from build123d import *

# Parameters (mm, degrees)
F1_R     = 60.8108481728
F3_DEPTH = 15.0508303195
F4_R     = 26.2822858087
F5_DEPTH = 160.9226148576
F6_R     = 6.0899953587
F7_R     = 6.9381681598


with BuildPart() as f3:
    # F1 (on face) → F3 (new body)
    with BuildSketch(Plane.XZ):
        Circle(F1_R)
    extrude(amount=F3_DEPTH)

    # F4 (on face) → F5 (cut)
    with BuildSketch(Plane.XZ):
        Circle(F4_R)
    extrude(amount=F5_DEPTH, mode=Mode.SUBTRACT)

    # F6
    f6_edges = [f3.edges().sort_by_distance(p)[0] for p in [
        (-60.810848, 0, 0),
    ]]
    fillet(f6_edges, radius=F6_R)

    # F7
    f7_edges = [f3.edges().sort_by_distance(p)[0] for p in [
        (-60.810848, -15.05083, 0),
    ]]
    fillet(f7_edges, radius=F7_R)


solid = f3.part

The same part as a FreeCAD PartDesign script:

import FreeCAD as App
import Part
import Sketcher
Q = App.Units.Quantity


def edges_at(feature, points):
    """Names of the edges that pass closest to the given points."""
    edges = feature.Shape.Edges
    near = lambda p: min(range(len(edges)), key=lambda i: edges[i].distToShape(Part.Vertex(*p))[0])
    return sorted({f"Edge{near(p) + 1}" for p in points})

doc = App.newDocument("Part")
params = doc.addObject("Spreadsheet::Sheet", "Params")
for row, (alias, value) in enumerate([
    ("pad1_length", "15.05083 mm"),
    ("pocket1_length", "160.922615 mm"),
    ("fillet_radius", "6.089995 mm"),
    ("fillet2_radius", "6.938168 mm"),
], start=1):
    params.set(f"A{row}", alias)
    params.set(f"B{row}", "=" + value)
    params.setAlias(f"B{row}", alias)

body = doc.addObject("PartDesign::Body", "Body")

sketch1 = body.newObject("Sketcher::SketchObject", "Sketch")
sketch1.AttachmentSupport = (doc.getObject("XZ_Plane"), [""])
sketch1.MapMode = "FlatFace"
sketch1.addGeometry(Part.Circle(App.Vector(0, 0, 0), App.Vector(0, 0, 1), 61), False)
sketch1.addConstraint(Sketcher.Constraint("Coincident", 0, 3, -1, 1))
sketch1.addConstraint(Sketcher.Constraint("Diameter", 0, Q("121.621696 mm")))
pad1 = body.newObject("PartDesign::Pad", "Pad")
pad1.Profile = sketch1
pad1.setExpression("Length", "Params.pad1_length")

sketch2 = body.newObject("Sketcher::SketchObject", "Sketch001")
sketch2.AttachmentSupport = (doc.getObject("XZ_Plane"), [""])
sketch2.MapMode = "FlatFace"
sketch2.addGeometry(Part.Circle(App.Vector(0, 0, 0), App.Vector(0, 0, 1), 26), False)
sketch2.addConstraint(Sketcher.Constraint("Coincident", 0, 3, -1, 1))
sketch2.addConstraint(Sketcher.Constraint("Diameter", 0, Q("52.564572 mm")))
pocket1 = body.newObject("PartDesign::Pocket", "Pocket")
pocket1.Profile = sketch2
pocket1.setExpression("Length", "Params.pocket1_length")
pocket1.Reversed = True
doc.recompute()

fillet = body.newObject("PartDesign::Fillet", "Fillet")
fillet.Base = (pocket1, edges_at(pocket1, [(-60.811, 0, 0)]))
fillet.setExpression("Radius", "Params.fillet_radius")
doc.recompute()

fillet2 = body.newObject("PartDesign::Fillet", "Fillet001")
fillet2.Base = (fillet, edges_at(fillet, [(-60.811, -15.051, 0)]))
fillet2.setExpression("Radius", "Params.fillet2_radius")

doc.recompute()
